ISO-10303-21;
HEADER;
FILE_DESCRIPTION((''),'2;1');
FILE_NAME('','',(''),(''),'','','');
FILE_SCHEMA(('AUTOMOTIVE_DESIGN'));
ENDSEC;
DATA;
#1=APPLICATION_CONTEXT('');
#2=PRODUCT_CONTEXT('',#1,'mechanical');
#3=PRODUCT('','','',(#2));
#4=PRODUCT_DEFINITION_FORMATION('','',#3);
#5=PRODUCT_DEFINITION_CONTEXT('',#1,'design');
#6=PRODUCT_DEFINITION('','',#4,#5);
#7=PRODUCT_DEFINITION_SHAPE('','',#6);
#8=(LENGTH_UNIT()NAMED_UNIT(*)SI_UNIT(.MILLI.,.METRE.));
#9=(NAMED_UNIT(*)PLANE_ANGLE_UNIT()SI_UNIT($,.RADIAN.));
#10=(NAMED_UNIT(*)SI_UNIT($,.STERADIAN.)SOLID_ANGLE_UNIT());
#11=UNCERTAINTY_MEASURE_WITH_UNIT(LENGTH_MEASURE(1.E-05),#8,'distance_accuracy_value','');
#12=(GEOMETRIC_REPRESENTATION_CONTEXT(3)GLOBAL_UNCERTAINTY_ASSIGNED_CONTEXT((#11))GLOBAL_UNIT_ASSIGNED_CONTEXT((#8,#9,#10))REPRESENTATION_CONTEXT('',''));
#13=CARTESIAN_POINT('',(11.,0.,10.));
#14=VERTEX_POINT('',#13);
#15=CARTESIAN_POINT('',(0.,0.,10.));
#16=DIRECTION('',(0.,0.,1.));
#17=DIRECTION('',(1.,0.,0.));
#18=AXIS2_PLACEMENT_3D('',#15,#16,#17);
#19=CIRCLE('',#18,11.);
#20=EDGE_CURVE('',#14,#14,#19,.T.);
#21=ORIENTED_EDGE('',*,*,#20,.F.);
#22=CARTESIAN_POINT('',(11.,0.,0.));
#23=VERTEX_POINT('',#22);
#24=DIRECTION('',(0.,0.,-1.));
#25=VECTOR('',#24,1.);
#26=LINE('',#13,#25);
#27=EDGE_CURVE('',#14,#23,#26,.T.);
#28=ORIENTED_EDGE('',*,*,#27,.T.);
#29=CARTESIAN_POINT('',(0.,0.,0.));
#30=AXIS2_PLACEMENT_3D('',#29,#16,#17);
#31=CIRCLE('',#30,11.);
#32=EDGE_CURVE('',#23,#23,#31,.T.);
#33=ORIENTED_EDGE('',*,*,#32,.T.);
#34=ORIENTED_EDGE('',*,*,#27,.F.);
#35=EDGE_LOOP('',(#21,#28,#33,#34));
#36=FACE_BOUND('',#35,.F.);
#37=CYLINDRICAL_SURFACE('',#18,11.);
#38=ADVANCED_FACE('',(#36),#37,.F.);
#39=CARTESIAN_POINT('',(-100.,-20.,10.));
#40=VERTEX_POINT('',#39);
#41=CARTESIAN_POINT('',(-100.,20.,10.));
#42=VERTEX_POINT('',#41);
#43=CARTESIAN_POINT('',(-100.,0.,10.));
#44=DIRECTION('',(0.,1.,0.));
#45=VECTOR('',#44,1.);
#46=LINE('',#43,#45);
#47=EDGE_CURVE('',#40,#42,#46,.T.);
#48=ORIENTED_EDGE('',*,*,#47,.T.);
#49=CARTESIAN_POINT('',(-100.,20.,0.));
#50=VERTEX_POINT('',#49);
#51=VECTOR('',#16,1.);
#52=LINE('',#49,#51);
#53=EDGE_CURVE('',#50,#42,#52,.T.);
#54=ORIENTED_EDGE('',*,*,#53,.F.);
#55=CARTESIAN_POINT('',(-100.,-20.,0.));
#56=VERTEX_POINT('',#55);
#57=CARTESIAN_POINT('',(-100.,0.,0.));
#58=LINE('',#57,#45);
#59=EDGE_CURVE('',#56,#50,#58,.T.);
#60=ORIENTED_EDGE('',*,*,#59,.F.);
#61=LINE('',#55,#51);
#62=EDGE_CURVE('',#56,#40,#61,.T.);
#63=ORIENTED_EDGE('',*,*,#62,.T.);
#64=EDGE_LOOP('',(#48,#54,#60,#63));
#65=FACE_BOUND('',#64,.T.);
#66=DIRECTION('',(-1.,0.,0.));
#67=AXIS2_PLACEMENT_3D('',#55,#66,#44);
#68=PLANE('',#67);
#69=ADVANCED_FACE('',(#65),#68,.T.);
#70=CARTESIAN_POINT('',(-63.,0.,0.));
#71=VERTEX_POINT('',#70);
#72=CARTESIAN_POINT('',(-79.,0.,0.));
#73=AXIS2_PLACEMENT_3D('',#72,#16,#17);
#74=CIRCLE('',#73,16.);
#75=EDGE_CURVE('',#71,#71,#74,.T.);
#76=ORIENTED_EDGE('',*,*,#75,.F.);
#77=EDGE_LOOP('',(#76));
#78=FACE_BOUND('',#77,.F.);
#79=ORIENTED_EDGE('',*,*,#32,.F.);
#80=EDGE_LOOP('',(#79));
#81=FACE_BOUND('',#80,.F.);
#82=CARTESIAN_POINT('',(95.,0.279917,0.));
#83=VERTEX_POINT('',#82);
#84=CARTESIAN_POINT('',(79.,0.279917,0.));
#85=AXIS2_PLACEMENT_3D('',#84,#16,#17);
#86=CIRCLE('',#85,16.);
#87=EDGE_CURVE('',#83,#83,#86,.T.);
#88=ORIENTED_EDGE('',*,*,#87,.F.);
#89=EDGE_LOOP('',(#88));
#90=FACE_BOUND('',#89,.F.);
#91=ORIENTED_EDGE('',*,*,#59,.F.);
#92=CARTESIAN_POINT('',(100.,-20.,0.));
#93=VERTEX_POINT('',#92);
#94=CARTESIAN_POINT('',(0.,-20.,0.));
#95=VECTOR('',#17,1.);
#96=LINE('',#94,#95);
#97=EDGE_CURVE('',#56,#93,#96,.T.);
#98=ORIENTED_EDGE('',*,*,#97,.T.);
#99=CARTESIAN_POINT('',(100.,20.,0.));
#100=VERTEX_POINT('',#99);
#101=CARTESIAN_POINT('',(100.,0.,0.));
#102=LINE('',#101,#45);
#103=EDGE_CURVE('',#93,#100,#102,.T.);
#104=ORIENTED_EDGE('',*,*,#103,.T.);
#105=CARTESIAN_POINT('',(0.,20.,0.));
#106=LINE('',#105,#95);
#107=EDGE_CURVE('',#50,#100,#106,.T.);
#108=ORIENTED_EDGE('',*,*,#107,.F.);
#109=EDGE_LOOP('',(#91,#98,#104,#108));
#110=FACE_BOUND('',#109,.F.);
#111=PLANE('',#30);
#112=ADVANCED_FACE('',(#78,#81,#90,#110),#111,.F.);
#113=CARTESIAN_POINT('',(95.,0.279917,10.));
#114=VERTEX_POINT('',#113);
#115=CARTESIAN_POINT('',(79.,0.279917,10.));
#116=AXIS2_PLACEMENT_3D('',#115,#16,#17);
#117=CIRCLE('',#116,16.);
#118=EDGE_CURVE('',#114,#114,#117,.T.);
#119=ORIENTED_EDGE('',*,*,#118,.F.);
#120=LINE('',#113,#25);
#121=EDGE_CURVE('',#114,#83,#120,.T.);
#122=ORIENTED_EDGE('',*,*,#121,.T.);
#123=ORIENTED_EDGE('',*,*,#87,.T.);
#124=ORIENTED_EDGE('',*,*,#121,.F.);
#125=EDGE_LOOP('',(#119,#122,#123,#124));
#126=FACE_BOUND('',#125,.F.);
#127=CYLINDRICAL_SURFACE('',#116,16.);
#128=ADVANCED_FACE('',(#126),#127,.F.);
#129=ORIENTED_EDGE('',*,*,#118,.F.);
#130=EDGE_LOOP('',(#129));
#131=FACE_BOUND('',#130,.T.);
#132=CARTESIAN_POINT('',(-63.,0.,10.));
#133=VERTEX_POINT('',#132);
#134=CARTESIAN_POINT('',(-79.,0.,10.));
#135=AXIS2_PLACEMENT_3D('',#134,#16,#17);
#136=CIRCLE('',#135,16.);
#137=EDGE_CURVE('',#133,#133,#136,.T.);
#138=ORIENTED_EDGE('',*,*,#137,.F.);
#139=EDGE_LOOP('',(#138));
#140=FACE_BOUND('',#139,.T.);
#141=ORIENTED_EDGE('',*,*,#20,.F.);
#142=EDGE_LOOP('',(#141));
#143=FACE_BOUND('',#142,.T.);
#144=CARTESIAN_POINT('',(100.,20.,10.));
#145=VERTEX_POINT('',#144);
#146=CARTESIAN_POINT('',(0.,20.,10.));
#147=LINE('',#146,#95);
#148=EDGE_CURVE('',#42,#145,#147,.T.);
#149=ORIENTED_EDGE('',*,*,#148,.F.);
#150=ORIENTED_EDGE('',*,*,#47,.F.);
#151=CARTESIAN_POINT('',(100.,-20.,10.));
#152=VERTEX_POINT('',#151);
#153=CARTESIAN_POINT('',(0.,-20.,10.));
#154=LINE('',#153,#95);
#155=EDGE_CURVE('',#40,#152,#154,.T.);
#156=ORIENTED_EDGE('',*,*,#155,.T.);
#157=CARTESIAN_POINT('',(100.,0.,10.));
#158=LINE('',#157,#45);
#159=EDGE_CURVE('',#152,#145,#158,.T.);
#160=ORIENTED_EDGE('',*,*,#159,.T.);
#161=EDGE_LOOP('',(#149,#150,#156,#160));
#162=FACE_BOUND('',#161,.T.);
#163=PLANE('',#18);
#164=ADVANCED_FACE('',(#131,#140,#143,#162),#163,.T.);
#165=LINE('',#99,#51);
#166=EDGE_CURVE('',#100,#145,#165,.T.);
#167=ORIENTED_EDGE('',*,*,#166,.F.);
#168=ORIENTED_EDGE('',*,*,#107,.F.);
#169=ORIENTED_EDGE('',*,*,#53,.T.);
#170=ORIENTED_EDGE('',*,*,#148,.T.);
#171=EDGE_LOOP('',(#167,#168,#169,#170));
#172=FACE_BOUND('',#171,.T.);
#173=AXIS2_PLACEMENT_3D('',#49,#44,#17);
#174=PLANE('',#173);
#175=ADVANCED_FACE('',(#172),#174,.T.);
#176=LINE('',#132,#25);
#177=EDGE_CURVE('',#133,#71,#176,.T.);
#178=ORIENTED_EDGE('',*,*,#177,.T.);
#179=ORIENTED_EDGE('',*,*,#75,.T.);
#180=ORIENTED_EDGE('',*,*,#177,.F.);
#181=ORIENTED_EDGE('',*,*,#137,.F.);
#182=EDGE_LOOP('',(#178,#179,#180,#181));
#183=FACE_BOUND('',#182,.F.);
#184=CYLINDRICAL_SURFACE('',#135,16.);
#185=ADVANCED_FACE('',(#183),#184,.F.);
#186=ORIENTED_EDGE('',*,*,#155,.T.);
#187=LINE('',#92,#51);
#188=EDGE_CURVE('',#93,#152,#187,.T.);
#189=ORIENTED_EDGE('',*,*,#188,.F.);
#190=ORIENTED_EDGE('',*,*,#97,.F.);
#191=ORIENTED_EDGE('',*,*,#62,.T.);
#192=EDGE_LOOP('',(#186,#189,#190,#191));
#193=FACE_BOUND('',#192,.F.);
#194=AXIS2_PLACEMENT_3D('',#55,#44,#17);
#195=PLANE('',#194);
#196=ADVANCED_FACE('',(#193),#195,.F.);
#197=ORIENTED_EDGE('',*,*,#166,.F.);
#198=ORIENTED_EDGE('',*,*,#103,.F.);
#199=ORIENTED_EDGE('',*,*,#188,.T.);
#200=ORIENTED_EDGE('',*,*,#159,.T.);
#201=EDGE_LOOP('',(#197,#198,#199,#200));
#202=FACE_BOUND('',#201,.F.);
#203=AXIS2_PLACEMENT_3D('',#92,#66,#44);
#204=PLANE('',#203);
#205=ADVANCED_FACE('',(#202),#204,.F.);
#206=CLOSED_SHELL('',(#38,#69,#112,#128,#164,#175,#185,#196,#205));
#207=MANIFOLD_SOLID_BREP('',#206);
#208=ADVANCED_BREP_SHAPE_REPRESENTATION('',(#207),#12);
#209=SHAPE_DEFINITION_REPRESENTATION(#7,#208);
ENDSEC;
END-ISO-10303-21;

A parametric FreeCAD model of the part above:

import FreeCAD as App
import Part
import Sketcher

doc = App.newDocument("Part")
body = doc.addObject("PartDesign::Body", "Body")

# Sketch on XY plane
sketch1 = body.newObject("Sketcher::SketchObject", "Sketch")
sketch1.AttachmentSupport = (doc.getObject("XY_Plane"), [""])
sketch1.MapMode = "FlatFace"
sketch1.addGeometry(Part.LineSegment(App.Vector(-100, 20, 0), App.Vector(-100, -20, 0)), False)
sketch1.addGeometry(Part.LineSegment(App.Vector(-100, -20, 0), App.Vector(100, -20, 0)), False)
sketch1.addGeometry(Part.LineSegment(App.Vector(100, -20, 0), App.Vector(100, 20, 0)), False)
sketch1.addGeometry(Part.LineSegment(App.Vector(100, 20, 0), App.Vector(-100, 20, 0)), False)
sketch1.addConstraint(Sketcher.Constraint("Coincident", 0, 2, 1, 1))
sketch1.addConstraint(Sketcher.Constraint("Coincident", 1, 2, 2, 1))
sketch1.addConstraint(Sketcher.Constraint("Coincident", 2, 2, 3, 1))
sketch1.addConstraint(Sketcher.Constraint("Coincident", 3, 2, 0, 1))
sketch1.addConstraint(Sketcher.Constraint("Vertical", 0))
sketch1.addConstraint(Sketcher.Constraint("Horizontal", 1))
sketch1.addConstraint(Sketcher.Constraint("Vertical", 2))
sketch1.addConstraint(Sketcher.Constraint("Horizontal", 3))
sketch1.addConstraint(Sketcher.Constraint("Symmetric", 0, 2, 2, 2, -1, 1))
sketch1.addConstraint(Sketcher.Constraint("DistanceX", 1, 1, 1, 2, 200.0))
sketch1.addConstraint(Sketcher.Constraint("DistanceY", 0, 2, 0, 1, 40.0))
pad1 = body.newObject("PartDesign::Pad", "Pad")
pad1.Profile = sketch1
pad1.Length = 10

# Sketch on XY plane
sketch2 = body.newObject("Sketcher::SketchObject", "Sketch001")
sketch2.AttachmentSupport = (doc.getObject("XY_Plane"), [""])
sketch2.MapMode = "FlatFace"
sketch2.AttachmentOffset = App.Placement(App.Vector(0, 0, 10), App.Rotation())
sketch2.addGeometry(Part.Circle(App.Vector(-79, 0, 0), App.Vector(0, 0, 1), 16), False)
sketch2.addGeometry(Part.Circle(App.Vector(79, 0, 0), App.Vector(0, 0, 1), 16), False)
sketch2.addGeometry(Part.Circle(App.Vector(0, 0, 0), App.Vector(0, 0, 1), 11), False)
sketch2.addConstraint(Sketcher.Constraint("Coincident", 2, 3, -1, 1))
sketch2.addConstraint(Sketcher.Constraint("Equal", 0, 1))
sketch2.addConstraint(Sketcher.Constraint("PointOnObject", 0, 3, -1))
sketch2.addConstraint(Sketcher.Constraint("Diameter", 0, 32.0))
sketch2.addConstraint(Sketcher.Constraint("Diameter", 2, 22.0))
sketch2.addConstraint(Sketcher.Constraint("DistanceX", 0, 3, -1, 1, 79.0))
sketch2.addConstraint(Sketcher.Constraint("DistanceX", -1, 1, 1, 3, 79.0))
sketch2.addConstraint(Sketcher.Constraint("DistanceY", -1, 1, 1, 3, 0.279917))
pocket1 = body.newObject("PartDesign::Pocket", "Pocket")
pocket1.Profile = sketch2
pocket1.Length = 10

doc.recompute()
